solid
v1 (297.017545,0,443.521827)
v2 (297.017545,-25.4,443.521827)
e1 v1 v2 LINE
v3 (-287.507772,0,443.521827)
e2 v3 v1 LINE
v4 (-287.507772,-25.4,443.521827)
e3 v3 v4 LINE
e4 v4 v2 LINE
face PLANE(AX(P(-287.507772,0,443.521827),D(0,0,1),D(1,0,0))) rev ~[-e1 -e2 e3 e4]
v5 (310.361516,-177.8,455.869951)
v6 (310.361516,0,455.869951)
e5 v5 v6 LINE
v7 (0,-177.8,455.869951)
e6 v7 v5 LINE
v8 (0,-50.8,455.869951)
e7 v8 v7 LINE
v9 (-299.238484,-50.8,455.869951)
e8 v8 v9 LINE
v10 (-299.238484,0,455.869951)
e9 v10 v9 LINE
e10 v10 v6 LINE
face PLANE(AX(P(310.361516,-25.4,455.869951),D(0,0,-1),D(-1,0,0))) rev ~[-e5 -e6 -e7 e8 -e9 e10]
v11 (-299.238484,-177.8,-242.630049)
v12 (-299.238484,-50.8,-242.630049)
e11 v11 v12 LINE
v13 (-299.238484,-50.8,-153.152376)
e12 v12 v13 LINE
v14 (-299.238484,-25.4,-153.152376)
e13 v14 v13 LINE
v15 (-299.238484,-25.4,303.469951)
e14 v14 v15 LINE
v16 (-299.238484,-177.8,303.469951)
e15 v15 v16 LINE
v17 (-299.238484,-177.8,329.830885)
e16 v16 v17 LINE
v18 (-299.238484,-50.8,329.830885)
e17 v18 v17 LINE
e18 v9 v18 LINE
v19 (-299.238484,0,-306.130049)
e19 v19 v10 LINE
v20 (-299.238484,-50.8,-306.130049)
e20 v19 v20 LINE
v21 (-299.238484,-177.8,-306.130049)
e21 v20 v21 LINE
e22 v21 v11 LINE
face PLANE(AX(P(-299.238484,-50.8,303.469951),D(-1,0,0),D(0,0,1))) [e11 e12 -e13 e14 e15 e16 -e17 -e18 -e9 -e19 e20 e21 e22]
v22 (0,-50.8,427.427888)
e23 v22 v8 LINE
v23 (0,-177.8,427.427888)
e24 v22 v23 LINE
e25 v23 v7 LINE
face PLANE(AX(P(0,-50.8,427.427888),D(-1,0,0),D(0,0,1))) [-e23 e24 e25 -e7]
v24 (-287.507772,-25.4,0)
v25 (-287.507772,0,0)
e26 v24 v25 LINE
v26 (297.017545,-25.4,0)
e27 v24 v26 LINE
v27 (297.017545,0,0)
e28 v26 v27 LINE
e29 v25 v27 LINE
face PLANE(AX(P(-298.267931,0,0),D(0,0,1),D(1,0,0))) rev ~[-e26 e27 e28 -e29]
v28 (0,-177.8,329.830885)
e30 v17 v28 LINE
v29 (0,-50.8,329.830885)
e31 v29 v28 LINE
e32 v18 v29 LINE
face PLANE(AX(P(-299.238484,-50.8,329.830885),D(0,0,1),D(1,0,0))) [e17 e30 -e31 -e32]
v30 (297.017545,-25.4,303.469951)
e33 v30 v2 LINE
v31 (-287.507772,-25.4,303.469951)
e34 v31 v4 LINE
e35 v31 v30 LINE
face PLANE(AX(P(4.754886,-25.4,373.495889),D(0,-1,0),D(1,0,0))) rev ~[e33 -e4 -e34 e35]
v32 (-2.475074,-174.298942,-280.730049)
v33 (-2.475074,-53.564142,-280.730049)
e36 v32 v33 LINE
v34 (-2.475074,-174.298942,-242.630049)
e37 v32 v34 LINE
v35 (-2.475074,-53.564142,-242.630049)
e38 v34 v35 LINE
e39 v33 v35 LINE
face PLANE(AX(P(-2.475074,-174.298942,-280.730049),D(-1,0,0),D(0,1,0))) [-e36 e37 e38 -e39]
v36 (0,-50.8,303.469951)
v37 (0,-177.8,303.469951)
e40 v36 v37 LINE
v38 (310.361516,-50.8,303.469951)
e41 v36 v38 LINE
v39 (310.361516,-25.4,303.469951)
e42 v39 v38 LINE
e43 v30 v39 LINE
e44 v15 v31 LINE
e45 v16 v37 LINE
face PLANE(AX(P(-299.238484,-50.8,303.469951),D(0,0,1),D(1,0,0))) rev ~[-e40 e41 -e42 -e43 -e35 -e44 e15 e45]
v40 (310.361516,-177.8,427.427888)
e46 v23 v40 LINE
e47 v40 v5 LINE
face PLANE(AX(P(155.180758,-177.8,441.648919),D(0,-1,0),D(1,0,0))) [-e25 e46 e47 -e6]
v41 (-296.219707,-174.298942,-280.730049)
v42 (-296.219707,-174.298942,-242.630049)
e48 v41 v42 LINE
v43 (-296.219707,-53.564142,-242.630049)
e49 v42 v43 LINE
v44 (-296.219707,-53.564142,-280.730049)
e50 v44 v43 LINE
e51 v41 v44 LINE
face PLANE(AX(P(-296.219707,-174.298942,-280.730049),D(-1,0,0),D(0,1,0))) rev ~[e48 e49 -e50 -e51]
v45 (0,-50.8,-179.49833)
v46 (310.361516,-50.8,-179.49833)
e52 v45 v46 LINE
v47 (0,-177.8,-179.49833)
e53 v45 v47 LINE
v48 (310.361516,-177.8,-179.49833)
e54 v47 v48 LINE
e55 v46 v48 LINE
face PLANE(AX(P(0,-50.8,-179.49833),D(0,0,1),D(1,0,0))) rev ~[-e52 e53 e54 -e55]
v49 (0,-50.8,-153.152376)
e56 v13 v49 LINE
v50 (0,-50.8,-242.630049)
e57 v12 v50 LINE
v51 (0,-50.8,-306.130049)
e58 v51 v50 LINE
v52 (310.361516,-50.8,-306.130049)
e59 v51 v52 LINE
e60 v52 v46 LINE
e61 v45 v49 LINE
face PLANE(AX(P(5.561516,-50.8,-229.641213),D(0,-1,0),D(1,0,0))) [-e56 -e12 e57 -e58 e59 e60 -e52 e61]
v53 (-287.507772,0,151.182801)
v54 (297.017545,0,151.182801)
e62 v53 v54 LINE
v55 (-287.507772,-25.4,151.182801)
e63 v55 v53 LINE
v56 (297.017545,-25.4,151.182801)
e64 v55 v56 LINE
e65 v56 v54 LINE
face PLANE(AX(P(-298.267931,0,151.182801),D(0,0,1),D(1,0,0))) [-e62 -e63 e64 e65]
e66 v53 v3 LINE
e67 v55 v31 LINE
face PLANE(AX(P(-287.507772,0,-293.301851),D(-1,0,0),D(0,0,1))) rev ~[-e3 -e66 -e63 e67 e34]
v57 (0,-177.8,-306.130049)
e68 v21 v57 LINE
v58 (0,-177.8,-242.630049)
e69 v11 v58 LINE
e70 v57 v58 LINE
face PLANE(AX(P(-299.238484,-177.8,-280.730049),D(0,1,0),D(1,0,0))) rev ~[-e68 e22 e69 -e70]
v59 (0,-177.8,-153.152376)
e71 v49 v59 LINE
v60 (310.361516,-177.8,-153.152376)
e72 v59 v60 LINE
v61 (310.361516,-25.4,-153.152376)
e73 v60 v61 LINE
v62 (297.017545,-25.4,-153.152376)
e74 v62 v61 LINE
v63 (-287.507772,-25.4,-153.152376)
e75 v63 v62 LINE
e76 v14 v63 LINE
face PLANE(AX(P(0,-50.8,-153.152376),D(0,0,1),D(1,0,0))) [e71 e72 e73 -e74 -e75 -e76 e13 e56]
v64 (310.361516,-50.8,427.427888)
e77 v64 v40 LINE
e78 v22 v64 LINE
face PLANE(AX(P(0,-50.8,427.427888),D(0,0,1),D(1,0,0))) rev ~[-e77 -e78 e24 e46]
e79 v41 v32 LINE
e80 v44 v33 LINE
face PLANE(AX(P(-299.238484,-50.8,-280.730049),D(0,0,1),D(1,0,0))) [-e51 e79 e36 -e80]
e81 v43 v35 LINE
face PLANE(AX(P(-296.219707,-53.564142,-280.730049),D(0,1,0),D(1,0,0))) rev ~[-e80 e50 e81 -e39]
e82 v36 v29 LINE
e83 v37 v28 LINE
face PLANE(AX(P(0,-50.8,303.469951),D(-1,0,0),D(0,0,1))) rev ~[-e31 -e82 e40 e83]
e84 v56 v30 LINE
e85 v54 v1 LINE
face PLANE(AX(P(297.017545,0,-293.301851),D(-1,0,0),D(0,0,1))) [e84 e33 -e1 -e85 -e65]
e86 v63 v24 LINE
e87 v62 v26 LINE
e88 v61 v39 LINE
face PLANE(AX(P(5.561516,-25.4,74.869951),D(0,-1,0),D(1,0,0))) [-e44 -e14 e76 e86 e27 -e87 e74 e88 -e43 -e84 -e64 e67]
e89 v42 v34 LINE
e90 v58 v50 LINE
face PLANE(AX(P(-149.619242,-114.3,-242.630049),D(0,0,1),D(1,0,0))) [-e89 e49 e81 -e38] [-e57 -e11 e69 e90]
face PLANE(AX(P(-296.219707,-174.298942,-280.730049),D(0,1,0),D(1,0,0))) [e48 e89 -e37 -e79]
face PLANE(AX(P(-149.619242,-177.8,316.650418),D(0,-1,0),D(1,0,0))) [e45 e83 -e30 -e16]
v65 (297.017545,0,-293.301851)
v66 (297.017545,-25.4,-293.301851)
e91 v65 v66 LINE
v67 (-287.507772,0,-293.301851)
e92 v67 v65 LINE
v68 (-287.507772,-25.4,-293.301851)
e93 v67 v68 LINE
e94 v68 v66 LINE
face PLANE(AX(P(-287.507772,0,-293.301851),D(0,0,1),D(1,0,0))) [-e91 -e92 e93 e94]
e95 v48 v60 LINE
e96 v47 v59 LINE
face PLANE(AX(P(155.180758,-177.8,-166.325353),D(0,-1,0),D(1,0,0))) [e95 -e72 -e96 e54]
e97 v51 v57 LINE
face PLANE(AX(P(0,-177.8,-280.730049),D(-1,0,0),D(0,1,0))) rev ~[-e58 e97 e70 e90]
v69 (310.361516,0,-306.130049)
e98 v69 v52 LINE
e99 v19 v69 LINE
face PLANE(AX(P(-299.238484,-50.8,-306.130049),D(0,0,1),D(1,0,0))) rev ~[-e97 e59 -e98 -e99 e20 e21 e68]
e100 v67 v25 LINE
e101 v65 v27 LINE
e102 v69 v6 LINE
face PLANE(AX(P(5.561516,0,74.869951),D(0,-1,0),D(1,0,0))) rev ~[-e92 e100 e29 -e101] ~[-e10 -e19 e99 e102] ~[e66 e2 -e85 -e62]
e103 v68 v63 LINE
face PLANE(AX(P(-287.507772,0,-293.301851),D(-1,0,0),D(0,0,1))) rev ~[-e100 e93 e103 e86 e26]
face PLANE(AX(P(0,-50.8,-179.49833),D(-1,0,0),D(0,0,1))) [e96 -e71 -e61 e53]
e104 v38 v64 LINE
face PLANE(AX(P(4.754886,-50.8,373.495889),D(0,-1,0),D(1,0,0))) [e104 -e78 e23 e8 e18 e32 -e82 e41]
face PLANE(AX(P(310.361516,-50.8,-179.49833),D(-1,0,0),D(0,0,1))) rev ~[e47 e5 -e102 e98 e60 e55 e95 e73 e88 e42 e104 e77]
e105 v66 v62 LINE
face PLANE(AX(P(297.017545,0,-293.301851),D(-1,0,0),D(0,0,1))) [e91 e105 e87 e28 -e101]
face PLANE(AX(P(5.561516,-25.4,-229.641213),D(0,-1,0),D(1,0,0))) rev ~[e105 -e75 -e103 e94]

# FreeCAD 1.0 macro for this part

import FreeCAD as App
import Part
import Sketcher
Q = App.Units.Quantity


def add_polygon(sketch, points):
    """Adds a closed chain of lines whose ends are joined by coincident constraints."""
    first, n = sketch.GeometryCount, len(points)
    for a, b in zip(points, points[1:] + points[:1]):
        sketch.addGeometry(Part.LineSegment(App.Vector(*a, 0), App.Vector(*b, 0)), False)
    for i in range(n):
        sketch.addConstraint(Sketcher.Constraint("Coincident", first + i, 2, first + (i + 1) % n, 1))

doc = App.newDocument("Part")
params = doc.addObject("Spreadsheet::Sheet", "Params")
for row, (alias, value) in enumerate([
    ("sketch1_width", "24 in"),
    ("sketch1_height", "30 in"),
    ("pad1_length", "1 in"),
    ("sketch2_width", "24 in"),
    ("sketch2_height", "6 in"),
    ("pad2_length", "1 in"),
    ("sketch3_width", "24 in"),
    ("pad3_length", "1 in"),
    ("pad4_length", "1 in"),
    ("pad5_length", "5 in"),
    ("sketch6_height", "1 in"),
    ("pad6_length", "5 in"),
    ("sketch7_height", "5 in"),
    ("pad7_length", "1.5 in"),
    ("pad8_length", "5 in"),
], start=1):
    params.set(f"A{row}", alias)
    params.set(f"B{row}", "=" + value)
    params.setAlias(f"B{row}", alias)

body = doc.addObject("PartDesign::Body", "Body")

# Sketch on XZ plane
sketch1 = body.newObject("Sketcher::SketchObject", "Sketch")
sketch1.AttachmentSupport = (doc.getObject("XZ_Plane"), [""])
sketch1.MapMode = "FlatFace"
add_polygon(sketch1, [(-299.238484, 455.869951), (-299.238484, -306.130049), (310.361516, -306.130049), (310.361516, 455.869951)])  # lines 0-3
add_polygon(sketch1, [(297.017545, -293.301851), (-287.507772, -293.301851), (-287.507772, 443.521827), (297.017545, 443.521827)])  # lines 4-7
sketch1.addConstraint(Sketcher.Constraint("Vertical", 0))
sketch1.addConstraint(Sketcher.Constraint("Horizontal", 1))
sketch1.addConstraint(Sketcher.Constraint("Vertical", 2))
sketch1.addConstraint(Sketcher.Constraint("Horizontal", 3))
sketch1.addConstraint(Sketcher.Constraint("Horizontal", 4))
sketch1.addConstraint(Sketcher.Constraint("Vertical", 5))
sketch1.addConstraint(Sketcher.Constraint("Horizontal", 6))
sketch1.addConstraint(Sketcher.Constraint("Vertical", 7))
sketch1.addConstraint(Sketcher.Constraint("DistanceX", 1, 1, 1, 2, Q("24 in")))
sketch1.addConstraint(Sketcher.Constraint("DistanceY", 0, 2, 0, 1, Q("30 in")))
sketch1.addConstraint(Sketcher.Constraint("DistanceY", 5, 1, 5, 2, 736.823678))
sketch1.addConstraint(Sketcher.Constraint("DistanceY", 0, 2, 4, 2, 12.828199))
sketch1.addConstraint(Sketcher.Constraint("DistanceX", 4, 2, 4, 1, 584.525317))
sketch1.addConstraint(Sketcher.Constraint("DistanceY", 0, 2, -1, 1, 306.130049))
sketch1.addConstraint(Sketcher.Constraint("DistanceX", 0, 2, 4, 2, 11.730712))
sketch1.addConstraint(Sketcher.Constraint("DistanceX", 0, 2, -1, 1, 299.238484))
sketch1.setExpression("Constraints[16]", "Params.sketch1_width")
sketch1.setExpression("Constraints[17]", "Params.sketch1_height")
pad1 = body.newObject("PartDesign::Pad", "Pad")
pad1.Profile = sketch1
pad1.setExpression("Length", "Params.pad1_length")

# Sketch on XZ plane
sketch2 = body.newObject("Sketcher::SketchObject", "Sketch001")
sketch2.AttachmentSupport = (doc.getObject("XZ_Plane"), [""])
sketch2.MapMode = "FlatFace"
sketch2.AttachmentOffset = App.Placement(App.Vector(0, 0, 1 * 25.4), App.Rotation())
add_polygon(sketch2, [(310.361516, 303.469951), (310.361516, 455.869951), (-299.238484, 455.869951), (-299.238484, 303.469951)])  # lines 0-3
sketch2.addConstraint(Sketcher.Constraint("Vertical", 0))
sketch2.addConstraint(Sketcher.Constraint("Horizontal", 1))
sketch2.addConstraint(Sketcher.Constraint("Vertical", 2))
sketch2.addConstraint(Sketcher.Constraint("Horizontal", 3))
sketch2.addConstraint(Sketcher.Constraint("DistanceX", 1, 2, 1, 1, Q("24 in")))
sketch2.addConstraint(Sketcher.Constraint("DistanceY", 0, 1, 0, 2, Q("6 in")))
sketch2.addConstraint(Sketcher.Constraint("DistanceY", -1, 1, 0, 2, 455.869951))
sketch2.addConstraint(Sketcher.Constraint("DistanceX", -1, 1, 0, 2, 310.361516))
sketch2.setExpression("Constraints[8]", "Params.sketch2_width")
sketch2.setExpression("Constraints[9]", "Params.sketch2_height")
pad2 = body.newObject("PartDesign::Pad", "Pad001")
pad2.Profile = sketch2
pad2.setExpression("Length", "Params.pad2_length")

# Sketch on XZ plane
sketch3 = body.newObject("Sketcher::SketchObject", "Sketch002")
sketch3.AttachmentSupport = (doc.getObject("XZ_Plane"), [""])
sketch3.MapMode = "FlatFace"
sketch3.AttachmentOffset = App.Placement(App.Vector(0, 0, 1 * 25.4), App.Rotation())
add_polygon(sketch3, [(-299.238484, -153.152376), (-299.238484, -306.130049), (310.361516, -306.130049), (310.361516, -153.152376)])  # lines 0-3
sketch3.addConstraint(Sketcher.Constraint("Vertical", 0))
sketch3.addConstraint(Sketcher.Constraint("Horizontal", 1))
sketch3.addConstraint(Sketcher.Constraint("Vertical", 2))
sketch3.addConstraint(Sketcher.Constraint("Horizontal", 3))
sketch3.addConstraint(Sketcher.Constraint("DistanceX", 1, 1, 1, 2, Q("24 in")))
sketch3.addConstraint(Sketcher.Constraint("DistanceY", 0, 2, 0, 1, 152.977673))
sketch3.addConstraint(Sketcher.Constraint("DistanceY", 0, 2, -1, 1, 306.130049))
sketch3.addConstraint(Sketcher.Constraint("DistanceX", 0, 2, -1, 1, 299.238484))
sketch3.setExpression("Constraints[8]", "Params.sketch3_width")
pad3 = body.newObject("PartDesign::Pad", "Pad002")
pad3.Profile = sketch3
pad3.setExpression("Length", "Params.pad3_length")

# Sketch on XZ plane
sketch4 = body.newObject("Sketcher::SketchObject", "Sketch003")
sketch4.AttachmentSupport = (doc.getObject("XZ_Plane"), [""])
sketch4.MapMode = "FlatFace"
add_polygon(sketch4, [(-298.267931, 151.182801), (-298.267931, 0), (309.390962, 0), (309.390962, 151.182801)])  # lines 0-3
sketch4.addConstraint(Sketcher.Constraint("Vertical", 0))
sketch4.addConstraint(Sketcher.Constraint("Horizontal", 1))
sketch4.addConstraint(Sketcher.Constraint("Vertical", 2))
sketch4.addConstraint(Sketcher.Constraint("Horizontal", 3))
sketch4.addConstraint(Sketcher.Constraint("PointOnObject", 0, 2, -1))
sketch4.addConstraint(Sketcher.Constraint("DistanceY", 0, 2, 0, 1, 151.182801))
sketch4.addConstraint(Sketcher.Constraint("DistanceX", 1, 1, 1, 2, 607.658893))
sketch4.addConstraint(Sketcher.Constraint("DistanceX", 0, 2, -1, 1, 298.267931))
pad4 = body.newObject("PartDesign::Pad", "Pad003")
pad4.Profile = sketch4
pad4.setExpression("Length", "Params.pad4_length")

# Sketch on XZ plane
sketch5 = body.newObject("Sketcher::SketchObject", "Sketch004")
sketch5.AttachmentSupport = (doc.getObject("XZ_Plane"), [""])
sketch5.MapMode = "FlatFace"
sketch5.AttachmentOffset = App.Placement(App.Vector(0, 0, 2 * 25.4), App.Rotation())
add_polygon(sketch5, [(0, -153.152376), (0, -179.49833), (310.361516, -179.49833), (310.361516, -153.152376)])  # lines 0-3
sketch5.addConstraint(Sketcher.Constraint("Vertical", 0))
sketch5.addConstraint(Sketcher.Constraint("Horizontal", 1))
sketch5.addConstraint(Sketcher.Constraint("Vertical", 2))
sketch5.addConstraint(Sketcher.Constraint("Horizontal", 3))
sketch5.addConstraint(Sketcher.Constraint("PointOnObject", 0, 2, -2))
sketch5.addConstraint(Sketcher.Constraint("DistanceX", 1, 1, 1, 2, 310.361516))
sketch5.addConstraint(Sketcher.Constraint("DistanceY", 0, 2, 0, 1, 26.345953))
sketch5.addConstraint(Sketcher.Constraint("DistanceY", 0, 2, -1, 1, 179.49833))
pad5 = body.newObject("PartDesign::Pad", "Pad004")
pad5.Profile = sketch5
pad5.setExpression("Length", "Params.pad5_length")

# Sketch on XZ plane
sketch6 = body.newObject("Sketcher::SketchObject", "Sketch005")
sketch6.AttachmentSupport = (doc.getObject("XZ_Plane"), [""])
sketch6.MapMode = "FlatFace"
sketch6.AttachmentOffset = App.Placement(App.Vector(0, 0, 2 * 25.4), App.Rotation())
add_polygon(sketch6, [(-299.238484, -280.730049), (-299.238484, -306.130049), (0, -306.130049), (0, -280.730049)])  # lines 0-3
sketch6.addConstraint(Sketcher.Constraint("Vertical", 0))
sketch6.addConstraint(Sketcher.Constraint("Horizontal", 1))
sketch6.addConstraint(Sketcher.Constraint("Vertical", 2))
sketch6.addConstraint(Sketcher.Constraint("Horizontal", 3))
sketch6.addConstraint(Sketcher.Constraint("PointOnObject", 1, 2, -2))
sketch6.addConstraint(Sketcher.Constraint("DistanceY", 0, 2, 0, 1, Q("1 in")))
sketch6.addConstraint(Sketcher.Constraint("DistanceX", 1, 1, 1, 2, 299.238484))
sketch6.addConstraint(Sketcher.Constraint("DistanceY", 0, 2, -1, 1, 306.130049))
sketch6.setExpression("Constraints[9]", "Params.sketch6_height")
pad6 = body.newObject("PartDesign::Pad", "Pad005")
pad6.Profile = sketch6
pad6.setExpression("Length", "Params.pad6_length")

# Sketch on XY plane
sketch7 = body.newObject("Sketcher::SketchObject", "Sketch006")
sketch7.AttachmentSupport = (doc.getObject("XY_Plane"), [""])
sketch7.MapMode = "FlatFace"
sketch7.AttachmentOffset = App.Placement(App.Vector(0, 0, -280.730049), App.Rotation())
add_polygon(sketch7, [(-299.238484, -50.8), (-299.238484, -177.8), (0, -177.8), (0, -50.8)])  # lines 0-3
add_polygon(sketch7, [(-2.475074, -174.298942), (-296.219707, -174.298942), (-296.219707, -53.564142), (-2.475074, -53.564142)])  # lines 4-7
sketch7.addConstraint(Sketcher.Constraint("Vertical", 0))
sketch7.addConstraint(Sketcher.Constraint("Horizontal", 1))
sketch7.addConstraint(Sketcher.Constraint("Vertical", 2))
sketch7.addConstraint(Sketcher.Constraint("Horizontal", 3))
sketch7.addConstraint(Sketcher.Constraint("Horizontal", 4))
sketch7.addConstraint(Sketcher.Constraint("Vertical", 5))
sketch7.addConstraint(Sketcher.Constraint("Horizontal", 6))
sketch7.addConstraint(Sketcher.Constraint("Vertical", 7))
sketch7.addConstraint(Sketcher.Constraint("PointOnObject", 1, 2, -2))
sketch7.addConstraint(Sketcher.Constraint("DistanceY", 0, 2, 0, 1, Q("5 in")))
sketch7.addConstraint(Sketcher.Constraint("DistanceY", 0, 2, -1, 1, Q("7 in")))
sketch7.addConstraint(Sketcher.Constraint("DistanceY", 5, 1, 5, 2, 120.7348))
sketch7.addConstraint(Sketcher.Constraint("DistanceX", 1, 1, 1, 2, 299.238484))
sketch7.addConstraint(Sketcher.Constraint("DistanceX", 4, 2, 4, 1, 293.744632))
sketch7.addConstraint(Sketcher.Constraint("DistanceX", 3, 2, 6, 2, 296.76341))
sketch7.addConstraint(Sketcher.Constraint("DistanceY", 4, 2, -1, 1, 174.298942))
sketch7.setExpression("Constraints[17]", "Params.sketch7_height")
pad7 = body.newObject("PartDesign::Pad", "Pad006")
pad7.Profile = sketch7
pad7.setExpression("Length", "Params.pad7_length")

# Sketch on XZ plane
sketch8 = body.newObject("Sketcher::SketchObject", "Sketch007")
sketch8.AttachmentSupport = (doc.getObject("XZ_Plane"), [""])
sketch8.MapMode = "FlatFace"
sketch8.AttachmentOffset = App.Placement(App.Vector(0, 0, 2 * 25.4), App.Rotation())
add_polygon(sketch8, [(-299.238484, 329.830885), (-299.238484, 303.469951), (0, 303.469951), (0, 329.830885)])  # lines 0-3
add_polygon(sketch8, [(0, 455.869951), (0, 427.427888), (310.361516, 427.427888), (310.361516, 455.869951)])  # lines 4-7
sketch8.addConstraint(Sketcher.Constraint("Vertical", 0))
sketch8.addConstraint(Sketcher.Constraint("Horizontal", 1))
sketch8.addConstraint(Sketcher.Constraint("Vertical", 2))
sketch8.addConstraint(Sketcher.Constraint("Horizontal", 3))
sketch8.addConstraint(Sketcher.Constraint("Vertical", 4))
sketch8.addConstraint(Sketcher.Constraint("Horizontal", 5))
sketch8.addConstraint(Sketcher.Constraint("Vertical", 6))
sketch8.addConstraint(Sketcher.Constraint("Horizontal", 7))
sketch8.addConstraint(Sketcher.Constraint("PointOnObject", 1, 2, -2))
sketch8.addConstraint(Sketcher.Constraint("PointOnObject", 4, 2, -2))
sketch8.addConstraint(Sketcher.Constraint("DistanceX", 3, 2, 5, 2, Q("24 in")))
sketch8.addConstraint(Sketcher.Constraint("DistanceY", 1, 2, 6, 2, Q("6 in")))
sketch8.addConstraint(Sketcher.Constraint("DistanceX", 1, 1, 1, 2, 299.238484))
sketch8.addConstraint(Sketcher.Constraint("DistanceY", 0, 2, 0, 1, 26.360934))
sketch8.addConstraint(Sketcher.Constraint("DistanceY", 4, 2, 4, 1, 28.442063))
sketch8.addConstraint(Sketcher.Constraint("DistanceY", -1, 1, 0, 2, 303.469951))
pad8 = body.newObject("PartDesign::Pad", "Pad007")
pad8.Profile = sketch8
pad8.setExpression("Length", "Params.pad8_length")

doc.recompute()
